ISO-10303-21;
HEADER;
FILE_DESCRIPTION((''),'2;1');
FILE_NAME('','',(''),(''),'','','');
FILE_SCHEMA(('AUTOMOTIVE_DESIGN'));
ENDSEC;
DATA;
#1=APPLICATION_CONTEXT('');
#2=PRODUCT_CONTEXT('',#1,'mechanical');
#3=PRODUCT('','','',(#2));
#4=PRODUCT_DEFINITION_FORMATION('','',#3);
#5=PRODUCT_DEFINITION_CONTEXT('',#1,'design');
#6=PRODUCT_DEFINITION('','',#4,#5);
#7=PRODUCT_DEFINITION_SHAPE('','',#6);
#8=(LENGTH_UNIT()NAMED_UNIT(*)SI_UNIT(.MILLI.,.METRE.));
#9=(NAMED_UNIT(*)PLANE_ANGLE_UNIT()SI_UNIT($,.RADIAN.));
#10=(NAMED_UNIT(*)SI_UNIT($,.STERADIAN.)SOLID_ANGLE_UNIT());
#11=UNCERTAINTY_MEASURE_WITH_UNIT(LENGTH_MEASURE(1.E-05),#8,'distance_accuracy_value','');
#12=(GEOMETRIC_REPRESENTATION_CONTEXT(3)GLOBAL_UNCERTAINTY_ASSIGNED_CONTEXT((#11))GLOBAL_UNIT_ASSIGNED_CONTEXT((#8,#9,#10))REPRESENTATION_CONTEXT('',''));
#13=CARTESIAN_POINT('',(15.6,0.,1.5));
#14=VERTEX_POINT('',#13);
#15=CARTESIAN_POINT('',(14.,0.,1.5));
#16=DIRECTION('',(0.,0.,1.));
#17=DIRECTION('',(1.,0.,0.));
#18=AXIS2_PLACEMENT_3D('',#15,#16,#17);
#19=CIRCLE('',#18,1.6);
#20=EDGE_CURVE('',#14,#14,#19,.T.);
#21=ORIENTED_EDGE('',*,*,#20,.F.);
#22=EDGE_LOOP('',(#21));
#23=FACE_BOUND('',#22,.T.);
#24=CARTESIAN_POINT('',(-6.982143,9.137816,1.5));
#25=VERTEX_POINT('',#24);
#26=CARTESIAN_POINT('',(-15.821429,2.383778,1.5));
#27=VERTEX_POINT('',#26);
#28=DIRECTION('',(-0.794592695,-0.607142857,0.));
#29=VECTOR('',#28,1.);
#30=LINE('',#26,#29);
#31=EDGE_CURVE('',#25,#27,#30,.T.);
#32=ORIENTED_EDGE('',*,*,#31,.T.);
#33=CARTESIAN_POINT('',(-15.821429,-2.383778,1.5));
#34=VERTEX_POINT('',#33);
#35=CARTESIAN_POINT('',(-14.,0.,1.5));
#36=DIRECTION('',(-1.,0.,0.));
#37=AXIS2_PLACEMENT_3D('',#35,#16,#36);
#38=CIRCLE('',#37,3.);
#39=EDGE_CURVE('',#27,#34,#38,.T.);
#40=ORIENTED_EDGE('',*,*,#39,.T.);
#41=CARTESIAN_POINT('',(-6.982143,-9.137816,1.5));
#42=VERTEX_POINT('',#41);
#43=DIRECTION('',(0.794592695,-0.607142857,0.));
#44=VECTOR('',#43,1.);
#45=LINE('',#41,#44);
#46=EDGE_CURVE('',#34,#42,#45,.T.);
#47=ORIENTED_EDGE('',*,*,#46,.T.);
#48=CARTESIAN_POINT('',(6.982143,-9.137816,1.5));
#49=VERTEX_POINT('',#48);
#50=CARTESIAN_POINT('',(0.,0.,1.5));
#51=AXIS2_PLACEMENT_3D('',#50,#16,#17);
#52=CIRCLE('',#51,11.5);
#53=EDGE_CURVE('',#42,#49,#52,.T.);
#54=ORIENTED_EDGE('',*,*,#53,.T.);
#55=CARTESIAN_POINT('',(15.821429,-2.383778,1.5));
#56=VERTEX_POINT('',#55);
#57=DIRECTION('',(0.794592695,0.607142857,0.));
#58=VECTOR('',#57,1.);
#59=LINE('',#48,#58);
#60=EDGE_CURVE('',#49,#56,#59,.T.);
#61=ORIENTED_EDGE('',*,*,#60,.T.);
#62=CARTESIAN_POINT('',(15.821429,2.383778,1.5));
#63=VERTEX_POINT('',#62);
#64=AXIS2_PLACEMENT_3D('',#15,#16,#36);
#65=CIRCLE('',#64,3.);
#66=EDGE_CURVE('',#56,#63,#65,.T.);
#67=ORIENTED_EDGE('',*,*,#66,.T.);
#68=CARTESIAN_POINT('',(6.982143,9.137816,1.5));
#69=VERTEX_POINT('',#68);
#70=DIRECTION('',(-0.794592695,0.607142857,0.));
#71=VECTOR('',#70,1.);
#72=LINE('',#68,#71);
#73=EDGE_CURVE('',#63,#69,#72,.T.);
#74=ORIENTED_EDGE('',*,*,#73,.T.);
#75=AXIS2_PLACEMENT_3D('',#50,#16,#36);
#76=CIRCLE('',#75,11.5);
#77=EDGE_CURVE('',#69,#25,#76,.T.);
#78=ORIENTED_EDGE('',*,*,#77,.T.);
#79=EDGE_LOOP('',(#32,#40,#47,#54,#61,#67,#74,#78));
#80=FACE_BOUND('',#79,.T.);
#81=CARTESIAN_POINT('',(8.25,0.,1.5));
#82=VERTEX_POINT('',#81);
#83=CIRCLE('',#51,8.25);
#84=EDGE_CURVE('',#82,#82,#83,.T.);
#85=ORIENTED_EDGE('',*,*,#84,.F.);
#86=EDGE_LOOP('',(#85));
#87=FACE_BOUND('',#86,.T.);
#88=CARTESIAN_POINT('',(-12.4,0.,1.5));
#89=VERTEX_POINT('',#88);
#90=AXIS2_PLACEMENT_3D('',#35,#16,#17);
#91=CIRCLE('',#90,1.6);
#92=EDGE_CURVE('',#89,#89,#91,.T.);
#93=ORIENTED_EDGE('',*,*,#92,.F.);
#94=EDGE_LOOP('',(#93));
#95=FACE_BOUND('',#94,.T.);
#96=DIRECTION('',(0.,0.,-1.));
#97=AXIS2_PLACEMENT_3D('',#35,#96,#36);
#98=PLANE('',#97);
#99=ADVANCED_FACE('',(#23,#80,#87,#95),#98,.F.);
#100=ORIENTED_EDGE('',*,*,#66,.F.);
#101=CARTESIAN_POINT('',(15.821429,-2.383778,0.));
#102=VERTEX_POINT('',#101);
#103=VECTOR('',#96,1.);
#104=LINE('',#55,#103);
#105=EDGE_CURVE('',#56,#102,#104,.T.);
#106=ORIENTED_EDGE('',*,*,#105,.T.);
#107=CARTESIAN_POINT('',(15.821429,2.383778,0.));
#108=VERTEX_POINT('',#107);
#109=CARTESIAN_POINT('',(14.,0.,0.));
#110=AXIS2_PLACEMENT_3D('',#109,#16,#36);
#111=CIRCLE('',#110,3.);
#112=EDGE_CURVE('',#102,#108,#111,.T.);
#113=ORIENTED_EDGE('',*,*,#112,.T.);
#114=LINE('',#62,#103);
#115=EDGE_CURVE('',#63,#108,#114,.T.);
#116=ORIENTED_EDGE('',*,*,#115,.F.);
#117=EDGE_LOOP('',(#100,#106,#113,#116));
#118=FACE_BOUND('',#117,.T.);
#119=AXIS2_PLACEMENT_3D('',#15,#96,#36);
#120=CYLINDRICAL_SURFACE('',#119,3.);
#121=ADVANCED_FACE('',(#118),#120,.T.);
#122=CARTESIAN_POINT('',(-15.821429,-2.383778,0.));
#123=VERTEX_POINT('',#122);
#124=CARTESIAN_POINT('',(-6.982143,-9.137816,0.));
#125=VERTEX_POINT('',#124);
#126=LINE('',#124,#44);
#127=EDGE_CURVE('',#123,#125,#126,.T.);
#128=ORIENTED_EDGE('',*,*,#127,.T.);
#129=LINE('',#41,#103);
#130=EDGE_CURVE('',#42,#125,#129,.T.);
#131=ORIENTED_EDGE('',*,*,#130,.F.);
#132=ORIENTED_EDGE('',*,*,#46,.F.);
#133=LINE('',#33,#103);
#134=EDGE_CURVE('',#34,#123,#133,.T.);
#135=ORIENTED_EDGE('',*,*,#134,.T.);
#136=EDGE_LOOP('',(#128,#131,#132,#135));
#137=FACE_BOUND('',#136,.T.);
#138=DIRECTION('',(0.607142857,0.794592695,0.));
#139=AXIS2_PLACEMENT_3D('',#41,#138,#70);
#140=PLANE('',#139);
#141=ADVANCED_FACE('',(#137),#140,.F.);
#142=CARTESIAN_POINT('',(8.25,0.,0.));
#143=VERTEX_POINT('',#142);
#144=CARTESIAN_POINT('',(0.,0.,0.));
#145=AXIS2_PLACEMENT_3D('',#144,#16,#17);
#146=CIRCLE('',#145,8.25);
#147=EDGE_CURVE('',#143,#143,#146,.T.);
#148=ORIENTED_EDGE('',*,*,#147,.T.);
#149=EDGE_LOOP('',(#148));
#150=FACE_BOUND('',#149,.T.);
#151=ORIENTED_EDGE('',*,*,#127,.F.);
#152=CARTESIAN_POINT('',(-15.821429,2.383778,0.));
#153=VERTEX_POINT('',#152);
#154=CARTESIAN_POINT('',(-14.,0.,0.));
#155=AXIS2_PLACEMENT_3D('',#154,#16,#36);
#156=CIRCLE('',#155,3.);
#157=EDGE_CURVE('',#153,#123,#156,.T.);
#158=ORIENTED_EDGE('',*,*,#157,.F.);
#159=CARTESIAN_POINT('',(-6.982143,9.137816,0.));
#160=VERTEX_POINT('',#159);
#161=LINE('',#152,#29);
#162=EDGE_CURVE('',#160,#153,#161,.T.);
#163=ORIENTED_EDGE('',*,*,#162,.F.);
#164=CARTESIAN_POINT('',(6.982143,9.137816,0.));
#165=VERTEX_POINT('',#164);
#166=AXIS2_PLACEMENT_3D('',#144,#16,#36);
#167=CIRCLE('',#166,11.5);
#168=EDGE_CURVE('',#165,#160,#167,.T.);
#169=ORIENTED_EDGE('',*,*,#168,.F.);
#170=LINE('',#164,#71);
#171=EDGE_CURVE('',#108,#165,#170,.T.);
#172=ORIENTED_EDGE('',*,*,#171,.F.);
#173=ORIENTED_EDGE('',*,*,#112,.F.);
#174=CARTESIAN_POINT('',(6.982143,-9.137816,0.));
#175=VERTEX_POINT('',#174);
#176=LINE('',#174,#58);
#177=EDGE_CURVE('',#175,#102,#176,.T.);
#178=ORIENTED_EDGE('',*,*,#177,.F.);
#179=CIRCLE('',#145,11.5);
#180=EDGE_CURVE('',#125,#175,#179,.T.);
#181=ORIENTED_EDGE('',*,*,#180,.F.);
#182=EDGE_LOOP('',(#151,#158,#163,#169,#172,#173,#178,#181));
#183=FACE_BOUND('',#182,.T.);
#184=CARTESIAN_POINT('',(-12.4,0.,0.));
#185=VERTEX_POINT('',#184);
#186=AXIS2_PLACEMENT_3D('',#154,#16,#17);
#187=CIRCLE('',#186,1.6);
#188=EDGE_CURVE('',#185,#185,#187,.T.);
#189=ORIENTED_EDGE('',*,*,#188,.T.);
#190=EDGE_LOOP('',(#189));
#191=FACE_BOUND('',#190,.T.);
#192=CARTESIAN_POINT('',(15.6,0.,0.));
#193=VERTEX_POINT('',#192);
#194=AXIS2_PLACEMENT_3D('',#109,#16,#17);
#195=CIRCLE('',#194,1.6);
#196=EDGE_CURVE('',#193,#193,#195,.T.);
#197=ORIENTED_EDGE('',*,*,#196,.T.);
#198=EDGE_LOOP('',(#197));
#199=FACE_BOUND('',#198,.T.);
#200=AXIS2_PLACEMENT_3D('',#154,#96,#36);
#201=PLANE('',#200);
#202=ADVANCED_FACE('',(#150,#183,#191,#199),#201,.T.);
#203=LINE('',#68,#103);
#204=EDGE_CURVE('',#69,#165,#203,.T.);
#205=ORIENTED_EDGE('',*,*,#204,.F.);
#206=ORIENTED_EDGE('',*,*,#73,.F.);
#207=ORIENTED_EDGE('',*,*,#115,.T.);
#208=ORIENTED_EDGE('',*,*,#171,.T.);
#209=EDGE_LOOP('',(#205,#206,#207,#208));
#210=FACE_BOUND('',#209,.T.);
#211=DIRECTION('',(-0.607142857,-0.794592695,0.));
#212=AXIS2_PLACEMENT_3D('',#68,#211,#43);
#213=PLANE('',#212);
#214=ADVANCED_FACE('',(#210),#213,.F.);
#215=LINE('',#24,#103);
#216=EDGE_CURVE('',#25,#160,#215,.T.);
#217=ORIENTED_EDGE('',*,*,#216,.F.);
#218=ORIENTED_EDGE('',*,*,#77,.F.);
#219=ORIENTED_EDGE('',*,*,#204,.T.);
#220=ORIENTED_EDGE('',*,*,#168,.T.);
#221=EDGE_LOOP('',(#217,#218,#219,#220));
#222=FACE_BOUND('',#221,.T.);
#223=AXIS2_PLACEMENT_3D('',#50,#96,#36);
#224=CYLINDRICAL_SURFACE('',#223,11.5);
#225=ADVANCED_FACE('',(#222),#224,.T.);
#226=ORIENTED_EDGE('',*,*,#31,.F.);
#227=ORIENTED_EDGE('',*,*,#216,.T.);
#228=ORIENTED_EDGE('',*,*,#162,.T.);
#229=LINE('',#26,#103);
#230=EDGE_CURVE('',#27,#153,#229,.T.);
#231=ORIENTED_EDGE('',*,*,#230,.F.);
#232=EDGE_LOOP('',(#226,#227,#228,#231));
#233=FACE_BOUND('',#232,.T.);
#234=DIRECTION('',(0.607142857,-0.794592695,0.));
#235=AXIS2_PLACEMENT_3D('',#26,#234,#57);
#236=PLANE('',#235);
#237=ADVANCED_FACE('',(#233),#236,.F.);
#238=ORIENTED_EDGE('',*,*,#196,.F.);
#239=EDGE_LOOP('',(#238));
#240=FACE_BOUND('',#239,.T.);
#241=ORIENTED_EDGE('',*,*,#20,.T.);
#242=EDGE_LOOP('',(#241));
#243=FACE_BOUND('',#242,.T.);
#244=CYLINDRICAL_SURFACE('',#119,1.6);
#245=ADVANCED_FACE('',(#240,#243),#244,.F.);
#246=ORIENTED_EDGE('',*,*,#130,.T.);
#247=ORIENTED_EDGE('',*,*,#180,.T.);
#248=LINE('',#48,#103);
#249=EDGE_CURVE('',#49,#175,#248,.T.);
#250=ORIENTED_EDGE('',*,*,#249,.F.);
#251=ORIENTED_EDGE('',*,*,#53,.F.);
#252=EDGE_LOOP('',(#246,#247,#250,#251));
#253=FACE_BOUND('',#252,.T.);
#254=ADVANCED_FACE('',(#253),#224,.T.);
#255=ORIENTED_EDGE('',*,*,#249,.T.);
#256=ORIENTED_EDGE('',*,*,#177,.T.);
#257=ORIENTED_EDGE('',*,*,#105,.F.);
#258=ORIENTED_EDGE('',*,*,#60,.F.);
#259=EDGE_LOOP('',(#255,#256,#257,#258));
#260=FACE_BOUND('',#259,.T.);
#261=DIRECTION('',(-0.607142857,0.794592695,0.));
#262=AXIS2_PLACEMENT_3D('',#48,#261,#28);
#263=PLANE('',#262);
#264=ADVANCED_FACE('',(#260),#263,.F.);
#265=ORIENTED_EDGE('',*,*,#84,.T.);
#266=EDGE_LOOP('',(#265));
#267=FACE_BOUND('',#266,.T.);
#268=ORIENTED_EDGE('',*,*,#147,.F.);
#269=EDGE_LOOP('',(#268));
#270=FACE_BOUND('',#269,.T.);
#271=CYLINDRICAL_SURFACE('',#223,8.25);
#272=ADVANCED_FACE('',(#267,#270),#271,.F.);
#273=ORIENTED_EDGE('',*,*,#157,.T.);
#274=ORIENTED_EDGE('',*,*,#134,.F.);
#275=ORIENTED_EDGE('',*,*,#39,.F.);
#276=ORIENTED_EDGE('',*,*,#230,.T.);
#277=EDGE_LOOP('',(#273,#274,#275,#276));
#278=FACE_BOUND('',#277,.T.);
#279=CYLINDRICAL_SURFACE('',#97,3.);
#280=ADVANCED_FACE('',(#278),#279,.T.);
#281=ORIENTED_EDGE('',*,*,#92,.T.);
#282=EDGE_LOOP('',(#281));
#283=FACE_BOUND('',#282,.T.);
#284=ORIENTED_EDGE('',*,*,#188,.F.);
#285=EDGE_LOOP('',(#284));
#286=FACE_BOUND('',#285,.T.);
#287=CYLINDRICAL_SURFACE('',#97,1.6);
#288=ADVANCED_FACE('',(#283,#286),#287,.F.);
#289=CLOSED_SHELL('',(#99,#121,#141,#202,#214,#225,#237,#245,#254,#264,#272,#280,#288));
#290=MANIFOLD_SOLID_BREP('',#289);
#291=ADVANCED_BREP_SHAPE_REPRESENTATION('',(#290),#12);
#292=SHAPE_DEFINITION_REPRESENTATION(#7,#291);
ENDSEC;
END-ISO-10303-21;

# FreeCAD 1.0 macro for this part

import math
import FreeCAD as App
import Part
import Sketcher
Q = App.Units.Quantity

doc = App.newDocument("Part")
body = doc.addObject("PartDesign::Body", "Body")

# Sketch on XY plane
sketch1 = body.newObject("Sketcher::SketchObject", "Sketch")
sketch1.AttachmentSupport = (doc.getObject("XY_Plane"), [""])
sketch1.MapMode = "FlatFace"
sketch1.addGeometry([
    Part.LineSegment(App.Vector(-7, 9.1, 0), App.Vector(-15.8, 2.4, 0)),  # 0
    Part.ArcOfCircle(Part.Circle(App.Vector(-14, 0, 0), App.Vector(0, 0, 1), 3), math.radians(127), math.radians(233)),  # 1
    Part.LineSegment(App.Vector(-15.8, -2.4, 0), App.Vector(-7, -9.1, 0)),  # 2
    Part.ArcOfCircle(Part.Circle(App.Vector(0, 0, 0), App.Vector(0, 0, 1), 11.5), math.radians(-127), math.radians(-53)),  # 3
    Part.LineSegment(App.Vector(7, -9.1, 0), App.Vector(15.8, -2.4, 0)),  # 4
    Part.ArcOfCircle(Part.Circle(App.Vector(14, 0, 0), App.Vector(0, 0, 1), 3), math.radians(-53), math.radians(53)),  # 5
    Part.LineSegment(App.Vector(15.8, 2.4, 0), App.Vector(7, 9.1, 0)),  # 6
    Part.ArcOfCircle(Part.Circle(App.Vector(0, 0, 0), App.Vector(0, 0, 1), 11.5), math.radians(53), math.radians(127)),  # 7
    Part.Circle(App.Vector(14, 0, 0), App.Vector(0, 0, 1), 1.6),  # 8
    Part.Circle(App.Vector(0, 0, 0), App.Vector(0, 0, 1), 8.2),  # 9
    Part.Circle(App.Vector(-14, 0, 0), App.Vector(0, 0, 1), 1.6),  # 10
], False)
sketch1.addConstraint([
    Sketcher.Constraint("Tangent", 0, 2, 1, 1),
    Sketcher.Constraint("Tangent", 1, 2, 2, 1),
    Sketcher.Constraint("Tangent", 2, 2, 3, 1),
    Sketcher.Constraint("Tangent", 3, 2, 4, 1),
    Sketcher.Constraint("Tangent", 4, 2, 5, 1),
    Sketcher.Constraint("Tangent", 5, 2, 6, 1),
    Sketcher.Constraint("Tangent", 6, 2, 7, 1),
    Sketcher.Constraint("Tangent", 7, 2, 0, 1),
    Sketcher.Constraint("Coincident", 3, 3, -1, 1),
    Sketcher.Constraint("Coincident", 7, 3, -1, 1),
    Sketcher.Constraint("Coincident", 9, 3, -1, 1),
    Sketcher.Constraint("Coincident", 8, 3, 5, 3),
    Sketcher.Constraint("Coincident", 10, 3, 1, 3),
    Sketcher.Constraint("Equal", 1, 5),
    Sketcher.Constraint("Equal", 3, 7),
    Sketcher.Constraint("Equal", 8, 10),
    Sketcher.Constraint("Symmetric", 1, 3, 5, 3, -1, 1),
    Sketcher.Constraint("PointOnObject", 1, 3, -1),
    Sketcher.Constraint("Radius", 1, Q("3 mm")),
    Sketcher.Constraint("Diameter", 8, Q("3.2 mm")),
    Sketcher.Constraint("Diameter", 9, Q("16.5 mm")),
    Sketcher.Constraint("Radius", 3, Q("11.5 mm")),
    Sketcher.Constraint("DistanceX", 1, 3, -1, 1, Q("14 mm")),
])
pad1 = body.newObject("PartDesign::Pad", "Pad")
pad1.Profile = sketch1
pad1.Length = 1.5

doc.recompute()
